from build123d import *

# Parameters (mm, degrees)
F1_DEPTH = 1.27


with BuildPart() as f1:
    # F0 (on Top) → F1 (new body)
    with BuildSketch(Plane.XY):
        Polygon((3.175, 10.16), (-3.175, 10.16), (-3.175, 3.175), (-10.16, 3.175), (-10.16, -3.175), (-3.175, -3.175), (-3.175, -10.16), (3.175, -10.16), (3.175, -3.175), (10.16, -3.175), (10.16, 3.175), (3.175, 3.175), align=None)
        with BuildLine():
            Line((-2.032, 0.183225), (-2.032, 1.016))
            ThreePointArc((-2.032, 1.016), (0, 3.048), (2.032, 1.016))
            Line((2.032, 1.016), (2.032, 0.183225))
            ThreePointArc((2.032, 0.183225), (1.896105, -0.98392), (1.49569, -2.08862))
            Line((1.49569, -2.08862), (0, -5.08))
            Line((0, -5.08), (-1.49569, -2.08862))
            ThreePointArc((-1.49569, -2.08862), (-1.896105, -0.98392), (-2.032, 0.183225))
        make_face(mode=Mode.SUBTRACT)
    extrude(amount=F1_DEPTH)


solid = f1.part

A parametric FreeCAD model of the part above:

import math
import FreeCAD as App
import Part
import Sketcher

V = App.Vector
Q = App.Units.Quantity


def add_polygon(sketch, points):
    """Adds a closed chain of lines whose ends are joined by coincident constraints."""
    first, n = sketch.GeometryCount, len(points)
    for a, b in zip(points, points[1:] + points[:1]):
        sketch.addGeometry(Part.LineSegment(App.Vector(*a, 0), App.Vector(*b, 0)), False)
    for i in range(n):
        sketch.addConstraint(Sketcher.Constraint("Coincident", first + i, 2, first + (i + 1) % n, 1))

doc = App.newDocument("Part")
body = doc.addObject("PartDesign::Body", "Body")

sketch1 = doc.addObject("Sketcher::SketchObject", "Sketch")
body.addObject(sketch1)
sketch1.AttachmentSupport = (doc.XY_Plane, [""])
sketch1.MapMode = "FlatFace"
add_polygon(sketch1, [(3.175, 10.16), (-3.175, 10.16), (-3.175, 3.175), (-10.16, 3.175), (-10.16, -3.175), (-3.175, -3.175), (-3.175, -10.16), (3.175, -10.16), (3.175, -3.175), (10.16, -3.175), (10.16, 3.175), (3.175, 3.175)])
sketch1.addGeometry(Part.ArcOfCircle(Part.Circle(V(3.047991, 0.183223, 0), V(0, 0, 1), 5.079991), math.radians(179.99998), math.radians(206.565078)), False)
sketch1.addGeometry(Part.LineSegment(V(-2.032, 0.183225, 0), V(-2.032, 1.016, 0)), False)
sketch1.addGeometry(Part.ArcOfCircle(Part.Circle(V(0, 1.016, 0), V(0, 0, 1), 2.032), math.radians(0), math.radians(180)), False)
sketch1.addGeometry(Part.LineSegment(V(2.032, 1.016, 0), V(2.032, 0.183225, 0)), False)
sketch1.addGeometry(Part.ArcOfCircle(Part.Circle(V(-3.047991, 0.183223, 0), V(0, 0, 1), 5.079991), math.radians(-26.565078), math.radians(0.00002)), False)
sketch1.addGeometry(Part.LineSegment(V(1.49569, -2.08862, 0), V(0, -5.08, 0)), False)
sketch1.addGeometry(Part.LineSegment(V(0, -5.08, 0), V(-1.49569, -2.08862, 0)), False)
sketch1.addConstraint([
    Sketcher.Constraint("Tangent", 12, 1, 13, 1),
    Sketcher.Constraint("Tangent", 13, 2, 14, 2),
    Sketcher.Constraint("Tangent", 14, 1, 15, 1),
    Sketcher.Constraint("Tangent", 15, 2, 16, 2),
    Sketcher.Constraint("Tangent", 16, 1, 17, 1),
    Sketcher.Constraint("Coincident", 17, 2, 18, 1),
    Sketcher.Constraint("Tangent", 18, 2, 12, 2),
    Sketcher.Constraint("Horizontal", 0),
    Sketcher.Constraint("Vertical", 1),
    Sketcher.Constraint("Horizontal", 2),
    Sketcher.Constraint("Vertical", 3),
    Sketcher.Constraint("Horizontal", 4),
    Sketcher.Constraint("Vertical", 5),
    Sketcher.Constraint("Horizontal", 6),
    Sketcher.Constraint("Vertical", 7),
    Sketcher.Constraint("Horizontal", 8),
    Sketcher.Constraint("Vertical", 9),
    Sketcher.Constraint("Horizontal", 10),
    Sketcher.Constraint("Vertical", 11),
    Sketcher.Constraint("Vertical", 13),
    Sketcher.Constraint("Vertical", 15),
    Sketcher.Constraint("Equal", 12, 16),
    Sketcher.Constraint("Symmetric", 0, 2, 6, 2, -1, 1),
    Sketcher.Constraint("Symmetric", 2, 2, 8, 2, -1, 1),
    Sketcher.Constraint("Symmetric", 4, 2, 10, 2, -1, 1),
    Sketcher.Constraint("Symmetric", 12, 3, 16, 3, -2),
    Sketcher.Constraint("Symmetric", 4, 2, 7, 2, -2),
    Sketcher.Constraint("PointOnObject", 17, 2, -2),
    Sketcher.Constraint("Equal", 10, 1),
    Sketcher.Constraint("Equal", 6, 3),
    Sketcher.Constraint("Radius", 14, Q("0.08 in")),
    Sketcher.Constraint("DistanceX", 0, 2, 0, 1, Q("0.25 in")),
    Sketcher.Constraint("DistanceY", -1, 1, 0, 2, Q("0.4 in")),
    Sketcher.Constraint("DistanceY", 17, 2, -1, 1, Q("0.2 in")),
    Sketcher.Constraint("DistanceY", -1, 1, 14, 3, Q("0.04 in")),
    Sketcher.Constraint("Radius", 12, 5.079991),
    Sketcher.Constraint("DistanceX", 16, 1, 12, 3, 1.552301),
])
pad1 = doc.addObject("PartDesign::Pad", "Pad")
body.addObject(pad1)
pad1.Profile = sketch1
pad1.Length = Q("0.05 in")

doc.recompute()
